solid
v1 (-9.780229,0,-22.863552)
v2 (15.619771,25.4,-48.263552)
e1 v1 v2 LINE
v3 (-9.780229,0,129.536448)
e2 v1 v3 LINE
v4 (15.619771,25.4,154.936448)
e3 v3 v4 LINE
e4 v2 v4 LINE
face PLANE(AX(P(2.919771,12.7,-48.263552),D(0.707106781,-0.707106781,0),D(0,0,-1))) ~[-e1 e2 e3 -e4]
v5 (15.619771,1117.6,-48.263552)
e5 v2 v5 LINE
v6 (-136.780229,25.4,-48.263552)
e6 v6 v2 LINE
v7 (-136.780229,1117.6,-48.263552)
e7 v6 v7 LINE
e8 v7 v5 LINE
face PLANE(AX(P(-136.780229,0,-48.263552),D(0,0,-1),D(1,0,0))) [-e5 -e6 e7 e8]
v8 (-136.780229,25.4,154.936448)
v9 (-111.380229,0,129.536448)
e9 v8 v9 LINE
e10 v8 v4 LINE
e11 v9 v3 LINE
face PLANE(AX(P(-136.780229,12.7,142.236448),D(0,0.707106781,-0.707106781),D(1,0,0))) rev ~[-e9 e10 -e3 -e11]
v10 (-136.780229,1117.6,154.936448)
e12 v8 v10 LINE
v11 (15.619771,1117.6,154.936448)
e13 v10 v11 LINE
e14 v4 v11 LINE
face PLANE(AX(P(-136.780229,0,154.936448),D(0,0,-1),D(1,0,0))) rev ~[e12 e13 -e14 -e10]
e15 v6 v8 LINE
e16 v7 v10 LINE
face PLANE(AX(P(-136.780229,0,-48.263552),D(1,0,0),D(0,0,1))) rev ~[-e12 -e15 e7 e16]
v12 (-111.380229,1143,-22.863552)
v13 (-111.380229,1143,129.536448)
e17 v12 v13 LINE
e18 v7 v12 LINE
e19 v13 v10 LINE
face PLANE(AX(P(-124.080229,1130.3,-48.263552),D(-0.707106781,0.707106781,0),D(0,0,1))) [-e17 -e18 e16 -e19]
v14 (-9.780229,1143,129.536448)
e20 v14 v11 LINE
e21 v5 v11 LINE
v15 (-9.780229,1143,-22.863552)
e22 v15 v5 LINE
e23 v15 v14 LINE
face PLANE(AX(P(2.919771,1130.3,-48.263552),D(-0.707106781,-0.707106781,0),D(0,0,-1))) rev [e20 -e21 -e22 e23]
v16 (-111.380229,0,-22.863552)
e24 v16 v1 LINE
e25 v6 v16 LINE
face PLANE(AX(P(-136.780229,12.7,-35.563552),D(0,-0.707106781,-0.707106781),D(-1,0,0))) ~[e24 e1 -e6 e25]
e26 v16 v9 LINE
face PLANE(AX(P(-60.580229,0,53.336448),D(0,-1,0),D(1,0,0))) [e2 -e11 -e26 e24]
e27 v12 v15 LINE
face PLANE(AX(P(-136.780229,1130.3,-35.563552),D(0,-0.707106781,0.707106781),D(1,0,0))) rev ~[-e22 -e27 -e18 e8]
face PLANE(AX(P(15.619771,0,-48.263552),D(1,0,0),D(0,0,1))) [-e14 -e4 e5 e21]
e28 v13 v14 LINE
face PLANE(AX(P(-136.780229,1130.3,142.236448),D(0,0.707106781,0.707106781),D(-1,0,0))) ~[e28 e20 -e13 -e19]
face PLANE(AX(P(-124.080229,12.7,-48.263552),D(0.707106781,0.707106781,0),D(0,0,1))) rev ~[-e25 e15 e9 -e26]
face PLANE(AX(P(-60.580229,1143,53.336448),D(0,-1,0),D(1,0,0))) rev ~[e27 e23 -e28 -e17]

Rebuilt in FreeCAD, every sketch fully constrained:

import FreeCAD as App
import Part
import Sketcher

V = App.Vector
Q = App.Units.Quantity


def edges_at(feature, points):
    """Names of the edges that pass closest to the given points."""
    edges = feature.Shape.Edges
    near = lambda p: min(range(len(edges)), key=lambda i: edges[i].distToShape(Part.Vertex(*p))[0])
    return sorted({f"Edge{near(p) + 1}" for p in points})

doc = App.newDocument("Part")
params = doc.addObject("Spreadsheet::Sheet", "Params")
for row, (alias, value) in enumerate([
    ("sketch1_width", "6 in"),
    ("sketch1_height", "8 in"),
    ("pad1_length", "45 in"),
    ("chamfer_size", "1 in"),
    ("chamfer2_size", "1 in"),
    ("chamfer3_size", "1 in"),
], start=1):
    params.set(f"A{row}", alias)
    params.set(f"B{row}", "=" + value)
    params.setAlias(f"B{row}", alias)

body = doc.addObject("PartDesign::Body", "Body")

# Sketch on XZ plane
sketch1 = body.newObject("Sketcher::SketchObject", "Sketch")
sketch1.AttachmentSupport = (doc.getObject("XZ_Plane"), [""])
sketch1.MapMode = "FlatFace"
sketch1.addGeometry([
    Part.LineSegment(V(-137, 155, 0), V(-137, -48, 0)),
    Part.LineSegment(V(-137, -48, 0), V(16, -48, 0)),
    Part.LineSegment(V(16, -48, 0), V(16, 155, 0)),
    Part.LineSegment(V(16, 155, 0), V(-137, 155, 0)),
], False)
sketch1.addConstraint([
    Sketcher.Constraint("Coincident", 0, 2, 1, 1),
    Sketcher.Constraint("Coincident", 1, 2, 2, 1),
    Sketcher.Constraint("Coincident", 2, 2, 3, 1),
    Sketcher.Constraint("Coincident", 3, 2, 0, 1),
    Sketcher.Constraint("Vertical", 0),
    Sketcher.Constraint("Horizontal", 1),
    Sketcher.Constraint("Vertical", 2),
    Sketcher.Constraint("Horizontal", 3),
    Sketcher.Constraint("DistanceX", 1, 1, 1, 2, Q("6 in")),
    Sketcher.Constraint("DistanceY", 0, 2, 0, 1, Q("8 in")),
    Sketcher.Constraint("DistanceX", 0, 2, -1, 1, 136.780229),
    Sketcher.Constraint("DistanceY", 0, 2, -1, 1, 48.263552),
])
sketch1.setExpression("Constraints[8]", "Params.sketch1_width")
sketch1.setExpression("Constraints[9]", "Params.sketch1_height")
pad1 = body.newObject("PartDesign::Pad", "Pad")
pad1.Profile = sketch1
pad1.setExpression("Length", "Params.pad1_length")
pad1.Reversed = True
doc.recompute()

chamfer = body.newObject("PartDesign::Chamfer", "Chamfer")
chamfer.Base = (pad1, edges_at(pad1, [(-60.58, 0, 154.936)]))
chamfer.setExpression("Size", "Params.chamfer_size")
doc.recompute()

chamfer2 = body.newObject("PartDesign::Chamfer", "Chamfer001")
chamfer2.Base = (chamfer, edges_at(chamfer, [(-136.78, 0, 40.636), (-60.58, 0, -48.264), (15.62, 0, 40.636)]))
chamfer2.setExpression("Size", "Params.chamfer2_size")
doc.recompute()

chamfer3 = body.newObject("PartDesign::Chamfer", "Chamfer002")
chamfer3.Base = (chamfer2, edges_at(chamfer2, [
    (-60.58, 1143, 154.936),
    (15.62, 1143, 53.336),
    (-60.58, 1143, -48.264),
    (-136.78, 1143, 53.336),
]))
chamfer3.setExpression("Size", "Params.chamfer3_size")

doc.recompute()
